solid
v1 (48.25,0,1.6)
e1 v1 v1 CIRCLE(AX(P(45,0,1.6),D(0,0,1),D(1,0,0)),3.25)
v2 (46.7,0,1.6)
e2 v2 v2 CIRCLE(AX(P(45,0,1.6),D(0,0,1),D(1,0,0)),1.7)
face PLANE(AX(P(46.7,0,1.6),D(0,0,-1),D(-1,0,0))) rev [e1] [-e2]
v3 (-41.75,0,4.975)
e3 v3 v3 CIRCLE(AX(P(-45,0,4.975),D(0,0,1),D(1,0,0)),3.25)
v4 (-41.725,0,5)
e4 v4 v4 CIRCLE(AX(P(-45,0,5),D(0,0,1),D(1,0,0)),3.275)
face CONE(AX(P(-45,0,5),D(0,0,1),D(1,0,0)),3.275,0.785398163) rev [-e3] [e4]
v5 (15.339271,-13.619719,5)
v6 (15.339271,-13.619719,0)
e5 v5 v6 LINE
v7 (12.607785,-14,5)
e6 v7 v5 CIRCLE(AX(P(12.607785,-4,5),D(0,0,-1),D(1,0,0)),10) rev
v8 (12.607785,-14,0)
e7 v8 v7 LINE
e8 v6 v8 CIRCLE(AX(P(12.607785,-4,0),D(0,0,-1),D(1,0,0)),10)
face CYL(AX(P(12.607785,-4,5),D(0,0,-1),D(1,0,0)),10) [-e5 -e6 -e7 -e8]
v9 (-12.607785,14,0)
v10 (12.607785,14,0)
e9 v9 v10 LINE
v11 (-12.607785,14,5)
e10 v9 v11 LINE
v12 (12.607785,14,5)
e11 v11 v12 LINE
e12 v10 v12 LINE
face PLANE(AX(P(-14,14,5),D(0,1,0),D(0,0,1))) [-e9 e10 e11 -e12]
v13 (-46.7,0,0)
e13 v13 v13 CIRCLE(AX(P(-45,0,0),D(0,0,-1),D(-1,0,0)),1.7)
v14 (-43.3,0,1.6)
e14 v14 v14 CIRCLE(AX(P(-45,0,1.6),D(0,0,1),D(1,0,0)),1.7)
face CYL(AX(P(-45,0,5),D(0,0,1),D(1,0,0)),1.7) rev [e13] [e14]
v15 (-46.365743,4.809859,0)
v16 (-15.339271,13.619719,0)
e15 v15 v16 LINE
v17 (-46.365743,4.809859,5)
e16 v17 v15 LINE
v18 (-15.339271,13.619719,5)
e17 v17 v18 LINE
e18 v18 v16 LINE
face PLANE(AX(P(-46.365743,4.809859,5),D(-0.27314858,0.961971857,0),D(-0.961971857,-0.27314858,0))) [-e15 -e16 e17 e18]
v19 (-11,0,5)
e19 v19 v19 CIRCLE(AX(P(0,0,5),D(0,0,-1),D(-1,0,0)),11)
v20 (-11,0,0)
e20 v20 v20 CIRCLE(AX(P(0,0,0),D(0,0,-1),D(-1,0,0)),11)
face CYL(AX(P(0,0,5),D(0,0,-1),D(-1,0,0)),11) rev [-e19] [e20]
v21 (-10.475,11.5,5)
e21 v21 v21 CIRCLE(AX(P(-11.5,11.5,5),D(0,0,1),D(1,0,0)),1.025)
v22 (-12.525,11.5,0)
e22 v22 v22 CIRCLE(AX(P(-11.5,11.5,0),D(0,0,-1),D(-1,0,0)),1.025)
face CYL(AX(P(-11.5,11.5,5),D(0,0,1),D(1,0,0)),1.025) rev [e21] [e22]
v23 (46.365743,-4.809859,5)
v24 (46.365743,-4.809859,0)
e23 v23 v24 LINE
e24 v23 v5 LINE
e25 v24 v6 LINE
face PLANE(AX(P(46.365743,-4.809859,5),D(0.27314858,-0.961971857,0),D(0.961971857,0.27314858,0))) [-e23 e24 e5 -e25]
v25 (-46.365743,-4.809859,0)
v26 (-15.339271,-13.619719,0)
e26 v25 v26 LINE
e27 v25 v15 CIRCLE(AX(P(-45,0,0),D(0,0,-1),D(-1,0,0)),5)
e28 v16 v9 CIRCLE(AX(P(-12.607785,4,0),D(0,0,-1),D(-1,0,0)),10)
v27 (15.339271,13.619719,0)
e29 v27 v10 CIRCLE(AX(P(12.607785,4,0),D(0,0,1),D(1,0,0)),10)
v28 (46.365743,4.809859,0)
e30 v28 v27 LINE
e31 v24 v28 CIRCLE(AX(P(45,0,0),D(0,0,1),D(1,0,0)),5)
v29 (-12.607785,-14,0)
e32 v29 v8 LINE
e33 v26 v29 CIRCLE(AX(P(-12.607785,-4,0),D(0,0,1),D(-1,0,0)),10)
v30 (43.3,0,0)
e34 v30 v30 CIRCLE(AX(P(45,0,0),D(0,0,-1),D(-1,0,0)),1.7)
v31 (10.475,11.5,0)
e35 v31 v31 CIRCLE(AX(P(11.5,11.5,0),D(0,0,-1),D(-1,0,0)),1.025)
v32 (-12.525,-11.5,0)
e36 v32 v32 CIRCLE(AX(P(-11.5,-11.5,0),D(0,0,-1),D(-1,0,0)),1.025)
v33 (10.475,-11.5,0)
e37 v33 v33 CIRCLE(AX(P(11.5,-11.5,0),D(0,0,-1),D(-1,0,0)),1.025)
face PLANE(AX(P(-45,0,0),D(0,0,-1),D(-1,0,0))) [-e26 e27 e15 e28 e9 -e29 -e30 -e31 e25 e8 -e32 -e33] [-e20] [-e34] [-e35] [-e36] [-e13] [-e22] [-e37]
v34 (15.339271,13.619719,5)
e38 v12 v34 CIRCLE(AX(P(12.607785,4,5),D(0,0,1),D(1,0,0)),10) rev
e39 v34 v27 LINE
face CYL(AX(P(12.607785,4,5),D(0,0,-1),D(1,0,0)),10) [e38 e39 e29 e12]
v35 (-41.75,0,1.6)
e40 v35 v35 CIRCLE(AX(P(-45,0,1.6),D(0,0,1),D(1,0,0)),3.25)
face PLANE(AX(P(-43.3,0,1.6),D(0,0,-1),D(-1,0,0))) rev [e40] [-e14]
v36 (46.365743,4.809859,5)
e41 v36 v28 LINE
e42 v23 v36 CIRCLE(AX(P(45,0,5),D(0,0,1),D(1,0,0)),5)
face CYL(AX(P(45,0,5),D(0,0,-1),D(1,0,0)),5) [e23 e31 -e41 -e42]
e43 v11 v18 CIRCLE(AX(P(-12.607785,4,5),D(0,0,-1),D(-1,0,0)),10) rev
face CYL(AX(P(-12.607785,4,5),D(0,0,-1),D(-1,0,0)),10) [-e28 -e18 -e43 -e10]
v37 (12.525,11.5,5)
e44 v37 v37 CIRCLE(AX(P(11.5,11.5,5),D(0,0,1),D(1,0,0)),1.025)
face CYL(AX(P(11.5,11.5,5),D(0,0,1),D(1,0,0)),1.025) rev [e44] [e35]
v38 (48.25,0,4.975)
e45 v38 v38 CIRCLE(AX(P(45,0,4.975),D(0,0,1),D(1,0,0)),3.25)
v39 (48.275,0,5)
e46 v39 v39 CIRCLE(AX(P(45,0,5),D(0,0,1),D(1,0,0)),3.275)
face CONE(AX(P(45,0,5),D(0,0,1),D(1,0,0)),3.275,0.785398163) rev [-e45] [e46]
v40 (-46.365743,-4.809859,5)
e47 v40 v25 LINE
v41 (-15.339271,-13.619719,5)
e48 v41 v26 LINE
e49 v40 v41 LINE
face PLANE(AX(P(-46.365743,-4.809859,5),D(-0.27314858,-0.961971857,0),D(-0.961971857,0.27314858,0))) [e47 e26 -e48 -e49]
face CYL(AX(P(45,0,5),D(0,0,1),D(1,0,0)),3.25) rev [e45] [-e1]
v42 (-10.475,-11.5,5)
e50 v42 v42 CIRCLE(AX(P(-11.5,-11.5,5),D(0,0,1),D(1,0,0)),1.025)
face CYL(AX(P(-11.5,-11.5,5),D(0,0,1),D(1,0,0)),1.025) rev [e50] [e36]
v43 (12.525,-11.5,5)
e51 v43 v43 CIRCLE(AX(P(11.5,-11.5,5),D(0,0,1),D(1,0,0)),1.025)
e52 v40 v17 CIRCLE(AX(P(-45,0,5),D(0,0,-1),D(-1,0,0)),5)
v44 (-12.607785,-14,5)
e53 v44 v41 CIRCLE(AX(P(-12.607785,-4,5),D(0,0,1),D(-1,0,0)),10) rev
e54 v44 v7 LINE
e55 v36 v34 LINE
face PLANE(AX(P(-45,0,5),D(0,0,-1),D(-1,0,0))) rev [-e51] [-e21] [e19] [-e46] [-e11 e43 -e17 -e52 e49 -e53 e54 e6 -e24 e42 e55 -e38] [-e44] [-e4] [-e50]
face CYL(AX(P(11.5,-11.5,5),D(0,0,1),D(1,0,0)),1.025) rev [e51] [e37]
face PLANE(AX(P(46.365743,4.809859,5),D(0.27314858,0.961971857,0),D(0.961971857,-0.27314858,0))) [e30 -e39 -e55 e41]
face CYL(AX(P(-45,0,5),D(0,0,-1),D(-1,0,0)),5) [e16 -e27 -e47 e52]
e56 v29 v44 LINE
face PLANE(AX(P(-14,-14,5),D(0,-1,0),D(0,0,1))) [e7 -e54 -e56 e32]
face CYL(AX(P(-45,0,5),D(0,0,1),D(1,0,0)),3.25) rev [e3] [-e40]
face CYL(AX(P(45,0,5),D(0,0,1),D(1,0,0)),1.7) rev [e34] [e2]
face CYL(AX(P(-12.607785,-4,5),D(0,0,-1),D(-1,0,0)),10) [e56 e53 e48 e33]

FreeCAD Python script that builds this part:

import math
import FreeCAD as App
import Part
import Sketcher
from FreeCAD import Vector
Q = App.Units.Quantity


def edges_at(feature, points):
    """Names of the edges that pass closest to the given points."""
    edges = feature.Shape.Edges
    near = lambda p: min(range(len(edges)), key=lambda i: edges[i].distToShape(Part.Vertex(*p))[0])
    return sorted({f"Edge{near(p) + 1}" for p in points})


def add_polygon(sketch, points):
    """Adds a closed chain of lines whose ends are joined by coincident constraints."""
    first, n = sketch.GeometryCount, len(points)
    for a, b in zip(points, points[1:] + points[:1]):
        sketch.addGeometry(Part.LineSegment(App.Vector(*a, 0), App.Vector(*b, 0)), False)
    for i in range(n):
        sketch.addConstraint(Sketcher.Constraint("Coincident", first + i, 2, first + (i + 1) % n, 1))

doc = App.newDocument("Part")
body = doc.addObject("PartDesign::Body", "Body")

# Sketch on XY plane
sketch1 = doc.addObject("Sketcher::SketchObject", "Sketch")
body.addObject(sketch1)
sketch1.AttachmentSupport = (doc.XY_Plane, [""])
sketch1.MapMode = "FlatFace"
sketch1.addGeometry(Part.LineSegment(Vector(0, 11, 0), Vector(0, 14, 0)), False)
sketch1.addGeometry(Part.LineSegment(Vector(0, 14, 0), Vector(-14, 14, 0)), False)
sketch1.addGeometry(Part.LineSegment(Vector(-14, 14, 0), Vector(-46.365743, 4.809859, 0)), False)
sketch1.addGeometry(Part.ArcOfCircle(Part.Circle(Vector(-45, 0, 0), Vector(0, 0, 1), 5), math.radians(105.851712), math.radians(180)), False)
sketch1.addGeometry(Part.LineSegment(Vector(-50, 0, 0), Vector(-11, 0, 0)), False)
sketch1.addGeometry(Part.ArcOfCircle(Part.Circle(Vector(0, 0, 0), Vector(0, 0, 1), 11), math.radians(90), math.radians(180)), False)
sketch1.addConstraint(Sketcher.Constraint("Coincident", 0, 2, 1, 1))
sketch1.addConstraint(Sketcher.Constraint("Coincident", 1, 2, 2, 1))
sketch1.addConstraint(Sketcher.Constraint("Tangent", 2, 2, 3, 1))
sketch1.addConstraint(Sketcher.Constraint("Coincident", 3, 2, 4, 1))
sketch1.addConstraint(Sketcher.Constraint("Coincident", 4, 2, 5, 2))
sketch1.addConstraint(Sketcher.Constraint("Coincident", 5, 1, 0, 1))
sketch1.addConstraint(Sketcher.Constraint("Vertical", 0))
sketch1.addConstraint(Sketcher.Constraint("Horizontal", 1))
sketch1.addConstraint(Sketcher.Constraint("Horizontal", 4))
sketch1.addConstraint(Sketcher.Constraint("Coincident", 5, 3, -1, 1))
sketch1.addConstraint(Sketcher.Constraint("PointOnObject", 3, 3, -1))
sketch1.addConstraint(Sketcher.Constraint("PointOnObject", 0, 2, -2))
sketch1.addConstraint(Sketcher.Constraint("PointOnObject", 3, 2, -1))
sketch1.addConstraint(Sketcher.Constraint("Radius", 3, Q("5 mm")))
sketch1.addConstraint(Sketcher.Constraint("Radius", 5, Q("11 mm")))
sketch1.addConstraint(Sketcher.Constraint("DistanceX", 1, 2, 1, 1, Q("14 mm")))
sketch1.addConstraint(Sketcher.Constraint("DistanceX", 4, 1, 4, 2, Q("39 mm")))
sketch1.addConstraint(Sketcher.Constraint("DistanceY", 0, 1, 0, 2, Q("3 mm")))
pad1 = doc.addObject("PartDesign::Pad", "Pad")
body.addObject(pad1)
pad1.Profile = sketch1
pad1.Length = 5
doc.recompute()

fillet = doc.addObject("PartDesign::Fillet", "Fillet")
body.addObject(fillet)
fillet.Base = (pad1, edges_at(pad1, [(-14, 14, 2.5)]))
fillet.Radius = 10
body2 = doc.addObject("PartDesign::Body", "Body001")
doc.recompute()

body2.BaseFeature = body
doc.recompute()

mirroring = doc.addObject("Part::Mirroring", "Mirroring")
mirroring.Source = body
mirroring.Base = Vector(-45, 0, 5)
mirroring.Normal = Vector(0, -1, 0)
body3 = doc.addObject("PartDesign::Body", "Body002")
body3.BaseFeature = mirroring
boolean = doc.addObject("PartDesign::Boolean", "Boolean")
body2.addObject(boolean)
boolean.Type = "Fuse"
boolean.addObjects([body3])
doc.recompute()
body4 = doc.addObject("PartDesign::Body", "Body003")
doc.recompute()

body4.BaseFeature = body2
doc.recompute()

mirroring2 = doc.addObject("Part::Mirroring", "Mirroring001")
mirroring2.Source = body2
mirroring2.Base = Vector(0, -11, 5)
mirroring2.Normal = Vector(-1, 0, 0)
body5 = doc.addObject("PartDesign::Body", "Body004")
body5.BaseFeature = mirroring2
boolean2 = doc.addObject("PartDesign::Boolean", "Boolean001")
body4.addObject(boolean2)
boolean2.Type = "Fuse"
boolean2.addObjects([body5])
doc.recompute()

# Sketch on YZ plane
sketch2 = doc.addObject("Sketcher::SketchObject", "Sketch001")
body4.addObject(sketch2)
sketch2.AttachmentSupport = (doc.getObject("YZ_Plane003"), [""])
sketch2.MapMode = "FlatFace"
sketch2.AttachmentOffset = App.Placement(Vector(0, 0, -45), App.Rotation())
add_polygon(sketch2, [(0, -7.521463), (0, 5), (-3.275, 5), (-3.25, 4.975), (-3.25, 1.6), (-1.7, 1.6), (-1.7, -6.5)])  # lines 0-6
sketch2.addConstraint(Sketcher.Constraint("Vertical", 0))
sketch2.addConstraint(Sketcher.Constraint("Horizontal", 1))
sketch2.addConstraint(Sketcher.Constraint("Vertical", 3))
sketch2.addConstraint(Sketcher.Constraint("Horizontal", 4))
sketch2.addConstraint(Sketcher.Constraint("Vertical", 5))
sketch2.addConstraint(Sketcher.Constraint("PointOnObject", 0, 2, -2))
sketch2.addConstraint(Sketcher.Constraint("Angle", 2, Q("-45 deg")))
sketch2.addConstraint(Sketcher.Constraint("Angle", 6, Q("-31 deg")))
sketch2.addConstraint(Sketcher.Constraint("DistanceY", 5, 2, 5, 1, Q("8.1 mm")))
sketch2.addConstraint(Sketcher.Constraint("DistanceY", -1, 1, 0, 2, Q("5 mm")))
sketch2.addConstraint(Sketcher.Constraint("DistanceX", 4, 1, 4, 2, Q("1.55 mm")))
sketch2.addConstraint(Sketcher.Constraint("DistanceY", -1, 1, 3, 2, Q("1.6 mm")))
sketch2.addConstraint(Sketcher.Constraint("DistanceX", 4, 2, -1, 1, Q("1.7 mm")))
sketch2.addConstraint(Sketcher.Constraint("DistanceX", 1, 2, 1, 1, Q("3.275 mm")))
groove = doc.addObject("PartDesign::Groove", "Groove")
body4.addObject(groove)
groove.Profile = sketch2
groove.ReferenceAxis = (sketch2, ["V_Axis"])
groove.Angle = 360
doc.recompute()

linearpattern = doc.addObject("PartDesign::LinearPattern", "LinearPattern")
body4.addObject(linearpattern)
linearpattern.Originals = [groove]
linearpattern.Direction = (doc.getObject("X_Axis003"), [""])
linearpattern.Mode = "offset"
linearpattern.Offset = 90
linearpattern.Occurrences = 2
body4.Tip = linearpattern

# Sketch on XY plane
sketch3 = doc.addObject("Sketcher::SketchObject", "Sketch002")
body4.addObject(sketch3)
sketch3.AttachmentSupport = (doc.getObject("XY_Plane003"), [""])
sketch3.MapMode = "FlatFace"
sketch3.AttachmentOffset = App.Placement(Vector(0, 0, 5), App.Rotation())
sketch3.addGeometry(Part.Circle(Vector(-11.5, 11.5, 0), Vector(0, 0, 1), 1.025), False)
sketch3.addGeometry(Part.Circle(Vector(11.5, 11.5, 0), Vector(0, 0, 1), 1.025), False)
sketch3.addGeometry(Part.Circle(Vector(11.5, -11.5, 0), Vector(0, 0, 1), 1.025), False)
sketch3.addGeometry(Part.Circle(Vector(-11.5, -11.5, 0), Vector(0, 0, 1), 1.025), False)
sketch3.addConstraint(Sketcher.Constraint("Equal", 0, 1))
sketch3.addConstraint(Sketcher.Constraint("Equal", 1, 2))
sketch3.addConstraint(Sketcher.Constraint("Equal", 2, 3))
sketch3.addConstraint(Sketcher.Constraint("Symmetric", 0, 3, 2, 3, -1, 1))
sketch3.addConstraint(Sketcher.Constraint("Symmetric", 1, 3, 3, 3, -1, 1))
sketch3.addConstraint(Sketcher.Constraint("Symmetric", 0, 3, 1, 3, -2))
sketch3.addConstraint(Sketcher.Constraint("Diameter", 0, Q("2.05 mm")))
sketch3.addConstraint(Sketcher.Constraint("DistanceX", 0, 3, 1, 3, Q("23 mm")))
sketch3.addConstraint(Sketcher.Constraint("DistanceY", 2, 3, 1, 3, Q("23 mm")))
doc.recompute()
hole = doc.addObject("PartDesign::Hole", "Hole")
body4.addObject(hole)
hole.Profile = sketch3
hole.ThreadType = "None"
hole.Diameter = 2.05
hole.DepthType = "Dimension"
hole.Depth = 6.35
hole.DrillPoint = "Angled"
hole.DrillPointAngle = 118
mirroring.Visibility = False
mirroring2.Visibility = False

doc.recompute()
